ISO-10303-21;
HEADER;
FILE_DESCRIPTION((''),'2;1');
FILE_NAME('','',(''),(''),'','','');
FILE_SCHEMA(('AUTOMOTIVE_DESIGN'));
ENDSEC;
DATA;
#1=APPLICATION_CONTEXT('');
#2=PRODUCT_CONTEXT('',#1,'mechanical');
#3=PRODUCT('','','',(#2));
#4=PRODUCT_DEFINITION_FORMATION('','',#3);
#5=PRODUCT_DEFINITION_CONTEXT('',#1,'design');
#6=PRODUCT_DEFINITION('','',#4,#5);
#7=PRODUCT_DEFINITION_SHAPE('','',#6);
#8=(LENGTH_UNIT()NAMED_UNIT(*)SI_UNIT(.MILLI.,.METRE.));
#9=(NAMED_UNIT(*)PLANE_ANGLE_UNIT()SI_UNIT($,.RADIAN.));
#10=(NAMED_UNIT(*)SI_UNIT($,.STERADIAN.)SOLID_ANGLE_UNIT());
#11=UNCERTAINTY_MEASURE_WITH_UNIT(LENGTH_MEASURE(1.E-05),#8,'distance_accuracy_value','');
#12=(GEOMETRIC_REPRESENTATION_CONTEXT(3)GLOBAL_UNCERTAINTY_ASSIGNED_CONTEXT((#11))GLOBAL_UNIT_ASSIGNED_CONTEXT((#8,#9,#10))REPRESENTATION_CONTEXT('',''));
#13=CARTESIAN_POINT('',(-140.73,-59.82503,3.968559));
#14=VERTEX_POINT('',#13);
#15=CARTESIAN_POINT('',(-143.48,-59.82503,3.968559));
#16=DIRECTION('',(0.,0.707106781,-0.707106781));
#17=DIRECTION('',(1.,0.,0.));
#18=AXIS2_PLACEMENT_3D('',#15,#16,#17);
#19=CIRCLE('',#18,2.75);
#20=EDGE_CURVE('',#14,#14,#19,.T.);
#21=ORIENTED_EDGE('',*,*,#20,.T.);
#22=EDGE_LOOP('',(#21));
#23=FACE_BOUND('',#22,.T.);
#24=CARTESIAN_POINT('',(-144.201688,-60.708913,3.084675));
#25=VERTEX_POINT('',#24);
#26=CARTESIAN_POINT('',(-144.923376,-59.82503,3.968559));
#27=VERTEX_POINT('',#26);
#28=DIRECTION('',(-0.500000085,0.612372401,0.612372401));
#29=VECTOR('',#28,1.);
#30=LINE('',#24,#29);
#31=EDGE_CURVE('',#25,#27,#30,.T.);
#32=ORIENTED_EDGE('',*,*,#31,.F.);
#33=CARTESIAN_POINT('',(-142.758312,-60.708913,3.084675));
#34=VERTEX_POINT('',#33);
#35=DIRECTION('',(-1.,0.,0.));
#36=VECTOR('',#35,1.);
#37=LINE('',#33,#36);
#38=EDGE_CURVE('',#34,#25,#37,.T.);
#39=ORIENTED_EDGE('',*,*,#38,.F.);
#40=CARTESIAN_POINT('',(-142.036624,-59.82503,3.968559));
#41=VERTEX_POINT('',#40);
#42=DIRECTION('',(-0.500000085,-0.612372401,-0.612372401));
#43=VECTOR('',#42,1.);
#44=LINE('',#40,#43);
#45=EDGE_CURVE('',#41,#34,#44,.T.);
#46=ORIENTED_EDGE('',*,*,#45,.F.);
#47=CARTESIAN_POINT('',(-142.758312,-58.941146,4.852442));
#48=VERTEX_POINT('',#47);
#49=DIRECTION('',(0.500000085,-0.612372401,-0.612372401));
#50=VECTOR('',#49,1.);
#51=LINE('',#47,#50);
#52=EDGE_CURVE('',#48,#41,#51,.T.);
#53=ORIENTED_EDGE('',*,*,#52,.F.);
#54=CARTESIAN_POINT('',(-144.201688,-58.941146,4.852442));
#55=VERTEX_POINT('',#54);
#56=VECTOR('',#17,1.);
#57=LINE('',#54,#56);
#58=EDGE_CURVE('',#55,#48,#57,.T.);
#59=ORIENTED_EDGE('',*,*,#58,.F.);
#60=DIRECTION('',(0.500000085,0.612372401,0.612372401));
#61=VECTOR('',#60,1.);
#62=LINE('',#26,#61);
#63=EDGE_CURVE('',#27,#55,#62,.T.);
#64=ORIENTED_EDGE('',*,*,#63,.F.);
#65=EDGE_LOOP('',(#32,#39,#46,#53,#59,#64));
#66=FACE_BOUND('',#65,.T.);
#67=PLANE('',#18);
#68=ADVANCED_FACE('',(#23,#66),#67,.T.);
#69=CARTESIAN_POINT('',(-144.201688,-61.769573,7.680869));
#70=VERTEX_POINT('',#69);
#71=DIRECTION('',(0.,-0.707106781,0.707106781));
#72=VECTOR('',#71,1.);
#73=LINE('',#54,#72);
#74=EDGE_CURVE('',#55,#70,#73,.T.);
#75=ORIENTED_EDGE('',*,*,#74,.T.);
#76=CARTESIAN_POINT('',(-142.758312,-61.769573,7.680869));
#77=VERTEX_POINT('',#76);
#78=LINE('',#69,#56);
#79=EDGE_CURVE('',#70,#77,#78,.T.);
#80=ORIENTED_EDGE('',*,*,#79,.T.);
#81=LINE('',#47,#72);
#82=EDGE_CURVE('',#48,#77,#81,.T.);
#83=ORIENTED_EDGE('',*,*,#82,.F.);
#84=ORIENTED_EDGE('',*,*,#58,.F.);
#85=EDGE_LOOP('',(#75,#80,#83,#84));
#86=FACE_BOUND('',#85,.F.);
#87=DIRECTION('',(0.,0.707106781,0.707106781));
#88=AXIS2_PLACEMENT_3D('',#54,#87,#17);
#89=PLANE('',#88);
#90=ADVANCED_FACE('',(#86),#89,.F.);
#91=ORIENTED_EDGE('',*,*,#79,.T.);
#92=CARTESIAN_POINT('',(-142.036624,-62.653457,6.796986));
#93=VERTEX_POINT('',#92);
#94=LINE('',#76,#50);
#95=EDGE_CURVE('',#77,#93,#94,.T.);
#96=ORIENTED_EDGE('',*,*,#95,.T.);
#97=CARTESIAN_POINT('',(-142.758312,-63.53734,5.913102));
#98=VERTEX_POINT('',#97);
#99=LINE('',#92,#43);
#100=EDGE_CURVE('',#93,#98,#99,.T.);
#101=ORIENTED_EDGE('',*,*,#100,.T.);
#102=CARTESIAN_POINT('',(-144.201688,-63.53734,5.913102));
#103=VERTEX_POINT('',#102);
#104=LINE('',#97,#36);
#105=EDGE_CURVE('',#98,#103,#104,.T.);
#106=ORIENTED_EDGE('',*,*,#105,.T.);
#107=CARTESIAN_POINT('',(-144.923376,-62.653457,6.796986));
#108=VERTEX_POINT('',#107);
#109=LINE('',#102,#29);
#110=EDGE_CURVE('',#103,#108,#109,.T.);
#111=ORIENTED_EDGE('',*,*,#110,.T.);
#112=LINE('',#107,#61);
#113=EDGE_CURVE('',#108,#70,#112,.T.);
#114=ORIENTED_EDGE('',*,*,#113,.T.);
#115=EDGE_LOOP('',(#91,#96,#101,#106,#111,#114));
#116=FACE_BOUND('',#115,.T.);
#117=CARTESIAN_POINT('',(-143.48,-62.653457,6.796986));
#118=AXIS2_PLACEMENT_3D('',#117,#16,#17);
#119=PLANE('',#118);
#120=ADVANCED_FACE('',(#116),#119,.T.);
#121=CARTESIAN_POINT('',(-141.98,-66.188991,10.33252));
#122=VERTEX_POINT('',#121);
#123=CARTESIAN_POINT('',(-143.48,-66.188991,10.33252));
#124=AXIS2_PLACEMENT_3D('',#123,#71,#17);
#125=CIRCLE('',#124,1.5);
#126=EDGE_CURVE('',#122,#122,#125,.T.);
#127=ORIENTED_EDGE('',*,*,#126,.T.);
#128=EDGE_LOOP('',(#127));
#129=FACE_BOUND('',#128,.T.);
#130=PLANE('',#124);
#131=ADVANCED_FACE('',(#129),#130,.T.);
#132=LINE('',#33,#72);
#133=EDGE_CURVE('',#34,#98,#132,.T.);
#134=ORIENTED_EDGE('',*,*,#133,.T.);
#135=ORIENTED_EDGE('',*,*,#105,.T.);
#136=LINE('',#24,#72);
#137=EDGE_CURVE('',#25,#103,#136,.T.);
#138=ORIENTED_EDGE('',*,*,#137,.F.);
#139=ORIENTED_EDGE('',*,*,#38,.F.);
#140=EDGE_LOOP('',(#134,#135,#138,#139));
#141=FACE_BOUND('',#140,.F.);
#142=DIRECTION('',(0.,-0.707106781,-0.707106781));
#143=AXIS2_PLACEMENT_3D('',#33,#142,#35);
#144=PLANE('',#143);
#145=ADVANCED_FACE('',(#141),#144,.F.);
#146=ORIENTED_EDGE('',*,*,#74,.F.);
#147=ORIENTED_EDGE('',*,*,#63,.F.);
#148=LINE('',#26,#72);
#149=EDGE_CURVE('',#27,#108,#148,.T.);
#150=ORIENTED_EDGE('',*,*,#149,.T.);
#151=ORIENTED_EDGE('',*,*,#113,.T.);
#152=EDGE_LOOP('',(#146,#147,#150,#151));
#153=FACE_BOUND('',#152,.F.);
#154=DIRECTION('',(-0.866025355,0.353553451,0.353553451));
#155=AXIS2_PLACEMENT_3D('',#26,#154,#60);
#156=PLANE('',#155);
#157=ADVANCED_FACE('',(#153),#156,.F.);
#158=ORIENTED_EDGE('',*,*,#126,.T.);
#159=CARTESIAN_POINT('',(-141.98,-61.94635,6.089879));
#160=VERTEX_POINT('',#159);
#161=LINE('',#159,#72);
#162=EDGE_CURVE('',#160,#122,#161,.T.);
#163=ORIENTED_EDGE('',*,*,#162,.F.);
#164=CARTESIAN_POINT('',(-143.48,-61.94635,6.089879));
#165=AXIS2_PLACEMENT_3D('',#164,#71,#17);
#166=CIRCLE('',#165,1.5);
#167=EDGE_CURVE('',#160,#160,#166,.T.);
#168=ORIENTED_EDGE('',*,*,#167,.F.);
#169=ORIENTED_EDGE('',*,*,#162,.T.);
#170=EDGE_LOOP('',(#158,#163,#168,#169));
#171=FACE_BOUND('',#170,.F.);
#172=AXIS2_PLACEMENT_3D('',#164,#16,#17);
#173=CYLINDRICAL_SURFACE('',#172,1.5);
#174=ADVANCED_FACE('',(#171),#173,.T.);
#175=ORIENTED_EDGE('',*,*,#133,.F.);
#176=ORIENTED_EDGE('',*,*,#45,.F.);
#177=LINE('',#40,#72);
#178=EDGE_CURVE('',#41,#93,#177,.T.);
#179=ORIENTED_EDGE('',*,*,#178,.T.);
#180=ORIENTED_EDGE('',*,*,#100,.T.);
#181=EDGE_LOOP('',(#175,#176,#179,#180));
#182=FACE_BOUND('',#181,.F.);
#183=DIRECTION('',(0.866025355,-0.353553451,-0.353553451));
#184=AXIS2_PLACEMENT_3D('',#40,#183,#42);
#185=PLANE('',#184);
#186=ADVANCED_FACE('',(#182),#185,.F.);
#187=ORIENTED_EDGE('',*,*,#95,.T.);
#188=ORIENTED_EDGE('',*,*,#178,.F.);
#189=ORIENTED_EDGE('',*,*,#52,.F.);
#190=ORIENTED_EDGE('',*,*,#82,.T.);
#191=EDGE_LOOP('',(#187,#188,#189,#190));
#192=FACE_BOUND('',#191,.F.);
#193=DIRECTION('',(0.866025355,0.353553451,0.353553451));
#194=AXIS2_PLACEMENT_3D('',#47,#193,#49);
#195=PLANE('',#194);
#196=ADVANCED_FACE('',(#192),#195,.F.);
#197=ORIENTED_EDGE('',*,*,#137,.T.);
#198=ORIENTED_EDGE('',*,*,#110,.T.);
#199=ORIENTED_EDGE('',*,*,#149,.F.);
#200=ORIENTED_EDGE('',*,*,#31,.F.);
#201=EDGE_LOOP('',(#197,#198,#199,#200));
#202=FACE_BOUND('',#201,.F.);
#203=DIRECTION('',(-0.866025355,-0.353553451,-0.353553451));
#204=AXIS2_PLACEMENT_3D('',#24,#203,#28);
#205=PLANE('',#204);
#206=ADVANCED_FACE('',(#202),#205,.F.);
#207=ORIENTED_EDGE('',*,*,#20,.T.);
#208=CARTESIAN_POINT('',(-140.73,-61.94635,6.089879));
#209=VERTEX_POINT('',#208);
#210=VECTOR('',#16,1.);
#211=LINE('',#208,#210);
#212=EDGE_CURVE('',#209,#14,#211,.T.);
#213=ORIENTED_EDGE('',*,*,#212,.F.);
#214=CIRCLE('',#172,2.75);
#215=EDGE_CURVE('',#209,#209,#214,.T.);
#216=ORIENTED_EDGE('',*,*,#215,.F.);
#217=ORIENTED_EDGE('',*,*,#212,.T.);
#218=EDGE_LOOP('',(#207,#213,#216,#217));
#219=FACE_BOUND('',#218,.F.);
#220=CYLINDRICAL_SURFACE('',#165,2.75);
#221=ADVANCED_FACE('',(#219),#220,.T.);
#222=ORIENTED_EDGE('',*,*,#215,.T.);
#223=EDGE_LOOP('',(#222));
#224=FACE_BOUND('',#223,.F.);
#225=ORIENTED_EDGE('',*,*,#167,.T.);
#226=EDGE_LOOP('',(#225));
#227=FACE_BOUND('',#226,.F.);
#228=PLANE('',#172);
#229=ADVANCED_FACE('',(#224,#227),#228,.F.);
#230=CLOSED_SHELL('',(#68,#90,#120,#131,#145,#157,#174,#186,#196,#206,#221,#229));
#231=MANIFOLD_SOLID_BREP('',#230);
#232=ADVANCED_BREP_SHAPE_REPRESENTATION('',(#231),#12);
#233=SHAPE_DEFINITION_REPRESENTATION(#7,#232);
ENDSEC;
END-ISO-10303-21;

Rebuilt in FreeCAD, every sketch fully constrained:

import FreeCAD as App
import Part
import Sketcher

V = App.Vector
Q = App.Units.Quantity

doc = App.newDocument("Part")
body = doc.addObject("PartDesign::Body", "Body")

# Sketch on XY plane
sketch1 = body.newObject("Sketcher::SketchObject", "Sketch")
sketch1.AttachmentSupport = (doc.getObject("XY_Plane"), [""])
sketch1.MapMode = "FlatFace"
sketch1.addGeometry(Part.Circle(V(0, 0, 0), V(0, 0, 1), 2.8), False)
sketch1.addConstraint([
    Sketcher.Constraint("Coincident", 0, 3, -1, 1),
    Sketcher.Constraint("Diameter", 0, Q("5.5 mm")),
])
pad1 = body.newObject("PartDesign::Pad", "Pad")
pad1.Profile = sketch1
pad1.Length = 3

# Sketch on XY plane
sketch2 = body.newObject("Sketcher::SketchObject", "Sketch001")
sketch2.AttachmentSupport = (doc.getObject("XY_Plane"), [""])
sketch2.MapMode = "FlatFace"
sketch2.addGeometry(Part.Circle(V(0, 0, 0), V(0, 0, 1), 1.5), False)
sketch2.addConstraint([
    Sketcher.Constraint("Coincident", 0, 3, -1, 1),
    Sketcher.Constraint("Diameter", 0, Q("3 mm")),
])
pad2 = body.newObject("PartDesign::Pad", "Pad001")
pad2.Profile = sketch2
pad2.Length = 6
pad2.Reversed = True

# Sketch on XY plane
sketch3 = body.newObject("Sketcher::SketchObject", "Sketch002")
sketch3.AttachmentSupport = (doc.getObject("XY_Plane"), [""])
sketch3.MapMode = "FlatFace"
sketch3.AttachmentOffset = App.Placement(V(0, 0, 3), App.Rotation())
sketch3.addGeometry([
    Part.LineSegment(V(0.7, -1.2, 0), V(1.4, 0, 0)),  # 0
    Part.LineSegment(V(1.4, 0, 0), V(0.7, 1.2, 0)),  # 1
    Part.LineSegment(V(0.7, 1.2, 0), V(-0.7, 1.2, 0)),  # 2
    Part.LineSegment(V(-0.7, 1.2, 0), V(-1.4, 0, 0)),  # 3
    Part.LineSegment(V(-1.4, 0, 0), V(-0.7, -1.2, 0)),  # 4
    Part.LineSegment(V(-0.7, -1.2, 0), V(0.7, -1.2, 0)),  # 5
], False)
sketch3.addConstraint([
    Sketcher.Constraint("Coincident", 0, 2, 1, 1),
    Sketcher.Constraint("Coincident", 1, 2, 2, 1),
    Sketcher.Constraint("Coincident", 2, 2, 3, 1),
    Sketcher.Constraint("Coincident", 3, 2, 4, 1),
    Sketcher.Constraint("Coincident", 4, 2, 5, 1),
    Sketcher.Constraint("Coincident", 5, 2, 0, 1),
    Sketcher.Constraint("Horizontal", 2),
    Sketcher.Constraint("Horizontal", 5),
    Sketcher.Constraint("Symmetric", 0, 2, 3, 2, -1, 1),
    Sketcher.Constraint("Symmetric", 1, 2, 4, 2, -1, 1),
    Sketcher.Constraint("PointOnObject", 0, 2, -1),
    Sketcher.Constraint("Parallel", 0, 3),
    Sketcher.Constraint("Vertical", 2, 2, 4, 2),
    Sketcher.Constraint("Angle", 0, Q("59.999994 deg")),
    Sketcher.Constraint("DistanceY", 4, 2, 2, 2, Q("2.5 mm")),
    Sketcher.Constraint("DistanceX", 2, 2, 2, 1, Q("1.443376 mm")),
])
pocket1 = body.newObject("PartDesign::Pocket", "Pocket")
pocket1.Profile = sketch3
pocket1.Length = 4
body2 = doc.addObject("PartDesign::Body", "Body001")
doc.recompute()

body.Placement = App.Placement(V(-143.48, -61.94635, 6.089879), App.Rotation(V(1, 0, 0), 225))
boolean = body2.newObject("PartDesign::Boolean", "Boolean")
boolean.Type = "Fuse"
boolean.addObjects([body])

doc.recompute()
